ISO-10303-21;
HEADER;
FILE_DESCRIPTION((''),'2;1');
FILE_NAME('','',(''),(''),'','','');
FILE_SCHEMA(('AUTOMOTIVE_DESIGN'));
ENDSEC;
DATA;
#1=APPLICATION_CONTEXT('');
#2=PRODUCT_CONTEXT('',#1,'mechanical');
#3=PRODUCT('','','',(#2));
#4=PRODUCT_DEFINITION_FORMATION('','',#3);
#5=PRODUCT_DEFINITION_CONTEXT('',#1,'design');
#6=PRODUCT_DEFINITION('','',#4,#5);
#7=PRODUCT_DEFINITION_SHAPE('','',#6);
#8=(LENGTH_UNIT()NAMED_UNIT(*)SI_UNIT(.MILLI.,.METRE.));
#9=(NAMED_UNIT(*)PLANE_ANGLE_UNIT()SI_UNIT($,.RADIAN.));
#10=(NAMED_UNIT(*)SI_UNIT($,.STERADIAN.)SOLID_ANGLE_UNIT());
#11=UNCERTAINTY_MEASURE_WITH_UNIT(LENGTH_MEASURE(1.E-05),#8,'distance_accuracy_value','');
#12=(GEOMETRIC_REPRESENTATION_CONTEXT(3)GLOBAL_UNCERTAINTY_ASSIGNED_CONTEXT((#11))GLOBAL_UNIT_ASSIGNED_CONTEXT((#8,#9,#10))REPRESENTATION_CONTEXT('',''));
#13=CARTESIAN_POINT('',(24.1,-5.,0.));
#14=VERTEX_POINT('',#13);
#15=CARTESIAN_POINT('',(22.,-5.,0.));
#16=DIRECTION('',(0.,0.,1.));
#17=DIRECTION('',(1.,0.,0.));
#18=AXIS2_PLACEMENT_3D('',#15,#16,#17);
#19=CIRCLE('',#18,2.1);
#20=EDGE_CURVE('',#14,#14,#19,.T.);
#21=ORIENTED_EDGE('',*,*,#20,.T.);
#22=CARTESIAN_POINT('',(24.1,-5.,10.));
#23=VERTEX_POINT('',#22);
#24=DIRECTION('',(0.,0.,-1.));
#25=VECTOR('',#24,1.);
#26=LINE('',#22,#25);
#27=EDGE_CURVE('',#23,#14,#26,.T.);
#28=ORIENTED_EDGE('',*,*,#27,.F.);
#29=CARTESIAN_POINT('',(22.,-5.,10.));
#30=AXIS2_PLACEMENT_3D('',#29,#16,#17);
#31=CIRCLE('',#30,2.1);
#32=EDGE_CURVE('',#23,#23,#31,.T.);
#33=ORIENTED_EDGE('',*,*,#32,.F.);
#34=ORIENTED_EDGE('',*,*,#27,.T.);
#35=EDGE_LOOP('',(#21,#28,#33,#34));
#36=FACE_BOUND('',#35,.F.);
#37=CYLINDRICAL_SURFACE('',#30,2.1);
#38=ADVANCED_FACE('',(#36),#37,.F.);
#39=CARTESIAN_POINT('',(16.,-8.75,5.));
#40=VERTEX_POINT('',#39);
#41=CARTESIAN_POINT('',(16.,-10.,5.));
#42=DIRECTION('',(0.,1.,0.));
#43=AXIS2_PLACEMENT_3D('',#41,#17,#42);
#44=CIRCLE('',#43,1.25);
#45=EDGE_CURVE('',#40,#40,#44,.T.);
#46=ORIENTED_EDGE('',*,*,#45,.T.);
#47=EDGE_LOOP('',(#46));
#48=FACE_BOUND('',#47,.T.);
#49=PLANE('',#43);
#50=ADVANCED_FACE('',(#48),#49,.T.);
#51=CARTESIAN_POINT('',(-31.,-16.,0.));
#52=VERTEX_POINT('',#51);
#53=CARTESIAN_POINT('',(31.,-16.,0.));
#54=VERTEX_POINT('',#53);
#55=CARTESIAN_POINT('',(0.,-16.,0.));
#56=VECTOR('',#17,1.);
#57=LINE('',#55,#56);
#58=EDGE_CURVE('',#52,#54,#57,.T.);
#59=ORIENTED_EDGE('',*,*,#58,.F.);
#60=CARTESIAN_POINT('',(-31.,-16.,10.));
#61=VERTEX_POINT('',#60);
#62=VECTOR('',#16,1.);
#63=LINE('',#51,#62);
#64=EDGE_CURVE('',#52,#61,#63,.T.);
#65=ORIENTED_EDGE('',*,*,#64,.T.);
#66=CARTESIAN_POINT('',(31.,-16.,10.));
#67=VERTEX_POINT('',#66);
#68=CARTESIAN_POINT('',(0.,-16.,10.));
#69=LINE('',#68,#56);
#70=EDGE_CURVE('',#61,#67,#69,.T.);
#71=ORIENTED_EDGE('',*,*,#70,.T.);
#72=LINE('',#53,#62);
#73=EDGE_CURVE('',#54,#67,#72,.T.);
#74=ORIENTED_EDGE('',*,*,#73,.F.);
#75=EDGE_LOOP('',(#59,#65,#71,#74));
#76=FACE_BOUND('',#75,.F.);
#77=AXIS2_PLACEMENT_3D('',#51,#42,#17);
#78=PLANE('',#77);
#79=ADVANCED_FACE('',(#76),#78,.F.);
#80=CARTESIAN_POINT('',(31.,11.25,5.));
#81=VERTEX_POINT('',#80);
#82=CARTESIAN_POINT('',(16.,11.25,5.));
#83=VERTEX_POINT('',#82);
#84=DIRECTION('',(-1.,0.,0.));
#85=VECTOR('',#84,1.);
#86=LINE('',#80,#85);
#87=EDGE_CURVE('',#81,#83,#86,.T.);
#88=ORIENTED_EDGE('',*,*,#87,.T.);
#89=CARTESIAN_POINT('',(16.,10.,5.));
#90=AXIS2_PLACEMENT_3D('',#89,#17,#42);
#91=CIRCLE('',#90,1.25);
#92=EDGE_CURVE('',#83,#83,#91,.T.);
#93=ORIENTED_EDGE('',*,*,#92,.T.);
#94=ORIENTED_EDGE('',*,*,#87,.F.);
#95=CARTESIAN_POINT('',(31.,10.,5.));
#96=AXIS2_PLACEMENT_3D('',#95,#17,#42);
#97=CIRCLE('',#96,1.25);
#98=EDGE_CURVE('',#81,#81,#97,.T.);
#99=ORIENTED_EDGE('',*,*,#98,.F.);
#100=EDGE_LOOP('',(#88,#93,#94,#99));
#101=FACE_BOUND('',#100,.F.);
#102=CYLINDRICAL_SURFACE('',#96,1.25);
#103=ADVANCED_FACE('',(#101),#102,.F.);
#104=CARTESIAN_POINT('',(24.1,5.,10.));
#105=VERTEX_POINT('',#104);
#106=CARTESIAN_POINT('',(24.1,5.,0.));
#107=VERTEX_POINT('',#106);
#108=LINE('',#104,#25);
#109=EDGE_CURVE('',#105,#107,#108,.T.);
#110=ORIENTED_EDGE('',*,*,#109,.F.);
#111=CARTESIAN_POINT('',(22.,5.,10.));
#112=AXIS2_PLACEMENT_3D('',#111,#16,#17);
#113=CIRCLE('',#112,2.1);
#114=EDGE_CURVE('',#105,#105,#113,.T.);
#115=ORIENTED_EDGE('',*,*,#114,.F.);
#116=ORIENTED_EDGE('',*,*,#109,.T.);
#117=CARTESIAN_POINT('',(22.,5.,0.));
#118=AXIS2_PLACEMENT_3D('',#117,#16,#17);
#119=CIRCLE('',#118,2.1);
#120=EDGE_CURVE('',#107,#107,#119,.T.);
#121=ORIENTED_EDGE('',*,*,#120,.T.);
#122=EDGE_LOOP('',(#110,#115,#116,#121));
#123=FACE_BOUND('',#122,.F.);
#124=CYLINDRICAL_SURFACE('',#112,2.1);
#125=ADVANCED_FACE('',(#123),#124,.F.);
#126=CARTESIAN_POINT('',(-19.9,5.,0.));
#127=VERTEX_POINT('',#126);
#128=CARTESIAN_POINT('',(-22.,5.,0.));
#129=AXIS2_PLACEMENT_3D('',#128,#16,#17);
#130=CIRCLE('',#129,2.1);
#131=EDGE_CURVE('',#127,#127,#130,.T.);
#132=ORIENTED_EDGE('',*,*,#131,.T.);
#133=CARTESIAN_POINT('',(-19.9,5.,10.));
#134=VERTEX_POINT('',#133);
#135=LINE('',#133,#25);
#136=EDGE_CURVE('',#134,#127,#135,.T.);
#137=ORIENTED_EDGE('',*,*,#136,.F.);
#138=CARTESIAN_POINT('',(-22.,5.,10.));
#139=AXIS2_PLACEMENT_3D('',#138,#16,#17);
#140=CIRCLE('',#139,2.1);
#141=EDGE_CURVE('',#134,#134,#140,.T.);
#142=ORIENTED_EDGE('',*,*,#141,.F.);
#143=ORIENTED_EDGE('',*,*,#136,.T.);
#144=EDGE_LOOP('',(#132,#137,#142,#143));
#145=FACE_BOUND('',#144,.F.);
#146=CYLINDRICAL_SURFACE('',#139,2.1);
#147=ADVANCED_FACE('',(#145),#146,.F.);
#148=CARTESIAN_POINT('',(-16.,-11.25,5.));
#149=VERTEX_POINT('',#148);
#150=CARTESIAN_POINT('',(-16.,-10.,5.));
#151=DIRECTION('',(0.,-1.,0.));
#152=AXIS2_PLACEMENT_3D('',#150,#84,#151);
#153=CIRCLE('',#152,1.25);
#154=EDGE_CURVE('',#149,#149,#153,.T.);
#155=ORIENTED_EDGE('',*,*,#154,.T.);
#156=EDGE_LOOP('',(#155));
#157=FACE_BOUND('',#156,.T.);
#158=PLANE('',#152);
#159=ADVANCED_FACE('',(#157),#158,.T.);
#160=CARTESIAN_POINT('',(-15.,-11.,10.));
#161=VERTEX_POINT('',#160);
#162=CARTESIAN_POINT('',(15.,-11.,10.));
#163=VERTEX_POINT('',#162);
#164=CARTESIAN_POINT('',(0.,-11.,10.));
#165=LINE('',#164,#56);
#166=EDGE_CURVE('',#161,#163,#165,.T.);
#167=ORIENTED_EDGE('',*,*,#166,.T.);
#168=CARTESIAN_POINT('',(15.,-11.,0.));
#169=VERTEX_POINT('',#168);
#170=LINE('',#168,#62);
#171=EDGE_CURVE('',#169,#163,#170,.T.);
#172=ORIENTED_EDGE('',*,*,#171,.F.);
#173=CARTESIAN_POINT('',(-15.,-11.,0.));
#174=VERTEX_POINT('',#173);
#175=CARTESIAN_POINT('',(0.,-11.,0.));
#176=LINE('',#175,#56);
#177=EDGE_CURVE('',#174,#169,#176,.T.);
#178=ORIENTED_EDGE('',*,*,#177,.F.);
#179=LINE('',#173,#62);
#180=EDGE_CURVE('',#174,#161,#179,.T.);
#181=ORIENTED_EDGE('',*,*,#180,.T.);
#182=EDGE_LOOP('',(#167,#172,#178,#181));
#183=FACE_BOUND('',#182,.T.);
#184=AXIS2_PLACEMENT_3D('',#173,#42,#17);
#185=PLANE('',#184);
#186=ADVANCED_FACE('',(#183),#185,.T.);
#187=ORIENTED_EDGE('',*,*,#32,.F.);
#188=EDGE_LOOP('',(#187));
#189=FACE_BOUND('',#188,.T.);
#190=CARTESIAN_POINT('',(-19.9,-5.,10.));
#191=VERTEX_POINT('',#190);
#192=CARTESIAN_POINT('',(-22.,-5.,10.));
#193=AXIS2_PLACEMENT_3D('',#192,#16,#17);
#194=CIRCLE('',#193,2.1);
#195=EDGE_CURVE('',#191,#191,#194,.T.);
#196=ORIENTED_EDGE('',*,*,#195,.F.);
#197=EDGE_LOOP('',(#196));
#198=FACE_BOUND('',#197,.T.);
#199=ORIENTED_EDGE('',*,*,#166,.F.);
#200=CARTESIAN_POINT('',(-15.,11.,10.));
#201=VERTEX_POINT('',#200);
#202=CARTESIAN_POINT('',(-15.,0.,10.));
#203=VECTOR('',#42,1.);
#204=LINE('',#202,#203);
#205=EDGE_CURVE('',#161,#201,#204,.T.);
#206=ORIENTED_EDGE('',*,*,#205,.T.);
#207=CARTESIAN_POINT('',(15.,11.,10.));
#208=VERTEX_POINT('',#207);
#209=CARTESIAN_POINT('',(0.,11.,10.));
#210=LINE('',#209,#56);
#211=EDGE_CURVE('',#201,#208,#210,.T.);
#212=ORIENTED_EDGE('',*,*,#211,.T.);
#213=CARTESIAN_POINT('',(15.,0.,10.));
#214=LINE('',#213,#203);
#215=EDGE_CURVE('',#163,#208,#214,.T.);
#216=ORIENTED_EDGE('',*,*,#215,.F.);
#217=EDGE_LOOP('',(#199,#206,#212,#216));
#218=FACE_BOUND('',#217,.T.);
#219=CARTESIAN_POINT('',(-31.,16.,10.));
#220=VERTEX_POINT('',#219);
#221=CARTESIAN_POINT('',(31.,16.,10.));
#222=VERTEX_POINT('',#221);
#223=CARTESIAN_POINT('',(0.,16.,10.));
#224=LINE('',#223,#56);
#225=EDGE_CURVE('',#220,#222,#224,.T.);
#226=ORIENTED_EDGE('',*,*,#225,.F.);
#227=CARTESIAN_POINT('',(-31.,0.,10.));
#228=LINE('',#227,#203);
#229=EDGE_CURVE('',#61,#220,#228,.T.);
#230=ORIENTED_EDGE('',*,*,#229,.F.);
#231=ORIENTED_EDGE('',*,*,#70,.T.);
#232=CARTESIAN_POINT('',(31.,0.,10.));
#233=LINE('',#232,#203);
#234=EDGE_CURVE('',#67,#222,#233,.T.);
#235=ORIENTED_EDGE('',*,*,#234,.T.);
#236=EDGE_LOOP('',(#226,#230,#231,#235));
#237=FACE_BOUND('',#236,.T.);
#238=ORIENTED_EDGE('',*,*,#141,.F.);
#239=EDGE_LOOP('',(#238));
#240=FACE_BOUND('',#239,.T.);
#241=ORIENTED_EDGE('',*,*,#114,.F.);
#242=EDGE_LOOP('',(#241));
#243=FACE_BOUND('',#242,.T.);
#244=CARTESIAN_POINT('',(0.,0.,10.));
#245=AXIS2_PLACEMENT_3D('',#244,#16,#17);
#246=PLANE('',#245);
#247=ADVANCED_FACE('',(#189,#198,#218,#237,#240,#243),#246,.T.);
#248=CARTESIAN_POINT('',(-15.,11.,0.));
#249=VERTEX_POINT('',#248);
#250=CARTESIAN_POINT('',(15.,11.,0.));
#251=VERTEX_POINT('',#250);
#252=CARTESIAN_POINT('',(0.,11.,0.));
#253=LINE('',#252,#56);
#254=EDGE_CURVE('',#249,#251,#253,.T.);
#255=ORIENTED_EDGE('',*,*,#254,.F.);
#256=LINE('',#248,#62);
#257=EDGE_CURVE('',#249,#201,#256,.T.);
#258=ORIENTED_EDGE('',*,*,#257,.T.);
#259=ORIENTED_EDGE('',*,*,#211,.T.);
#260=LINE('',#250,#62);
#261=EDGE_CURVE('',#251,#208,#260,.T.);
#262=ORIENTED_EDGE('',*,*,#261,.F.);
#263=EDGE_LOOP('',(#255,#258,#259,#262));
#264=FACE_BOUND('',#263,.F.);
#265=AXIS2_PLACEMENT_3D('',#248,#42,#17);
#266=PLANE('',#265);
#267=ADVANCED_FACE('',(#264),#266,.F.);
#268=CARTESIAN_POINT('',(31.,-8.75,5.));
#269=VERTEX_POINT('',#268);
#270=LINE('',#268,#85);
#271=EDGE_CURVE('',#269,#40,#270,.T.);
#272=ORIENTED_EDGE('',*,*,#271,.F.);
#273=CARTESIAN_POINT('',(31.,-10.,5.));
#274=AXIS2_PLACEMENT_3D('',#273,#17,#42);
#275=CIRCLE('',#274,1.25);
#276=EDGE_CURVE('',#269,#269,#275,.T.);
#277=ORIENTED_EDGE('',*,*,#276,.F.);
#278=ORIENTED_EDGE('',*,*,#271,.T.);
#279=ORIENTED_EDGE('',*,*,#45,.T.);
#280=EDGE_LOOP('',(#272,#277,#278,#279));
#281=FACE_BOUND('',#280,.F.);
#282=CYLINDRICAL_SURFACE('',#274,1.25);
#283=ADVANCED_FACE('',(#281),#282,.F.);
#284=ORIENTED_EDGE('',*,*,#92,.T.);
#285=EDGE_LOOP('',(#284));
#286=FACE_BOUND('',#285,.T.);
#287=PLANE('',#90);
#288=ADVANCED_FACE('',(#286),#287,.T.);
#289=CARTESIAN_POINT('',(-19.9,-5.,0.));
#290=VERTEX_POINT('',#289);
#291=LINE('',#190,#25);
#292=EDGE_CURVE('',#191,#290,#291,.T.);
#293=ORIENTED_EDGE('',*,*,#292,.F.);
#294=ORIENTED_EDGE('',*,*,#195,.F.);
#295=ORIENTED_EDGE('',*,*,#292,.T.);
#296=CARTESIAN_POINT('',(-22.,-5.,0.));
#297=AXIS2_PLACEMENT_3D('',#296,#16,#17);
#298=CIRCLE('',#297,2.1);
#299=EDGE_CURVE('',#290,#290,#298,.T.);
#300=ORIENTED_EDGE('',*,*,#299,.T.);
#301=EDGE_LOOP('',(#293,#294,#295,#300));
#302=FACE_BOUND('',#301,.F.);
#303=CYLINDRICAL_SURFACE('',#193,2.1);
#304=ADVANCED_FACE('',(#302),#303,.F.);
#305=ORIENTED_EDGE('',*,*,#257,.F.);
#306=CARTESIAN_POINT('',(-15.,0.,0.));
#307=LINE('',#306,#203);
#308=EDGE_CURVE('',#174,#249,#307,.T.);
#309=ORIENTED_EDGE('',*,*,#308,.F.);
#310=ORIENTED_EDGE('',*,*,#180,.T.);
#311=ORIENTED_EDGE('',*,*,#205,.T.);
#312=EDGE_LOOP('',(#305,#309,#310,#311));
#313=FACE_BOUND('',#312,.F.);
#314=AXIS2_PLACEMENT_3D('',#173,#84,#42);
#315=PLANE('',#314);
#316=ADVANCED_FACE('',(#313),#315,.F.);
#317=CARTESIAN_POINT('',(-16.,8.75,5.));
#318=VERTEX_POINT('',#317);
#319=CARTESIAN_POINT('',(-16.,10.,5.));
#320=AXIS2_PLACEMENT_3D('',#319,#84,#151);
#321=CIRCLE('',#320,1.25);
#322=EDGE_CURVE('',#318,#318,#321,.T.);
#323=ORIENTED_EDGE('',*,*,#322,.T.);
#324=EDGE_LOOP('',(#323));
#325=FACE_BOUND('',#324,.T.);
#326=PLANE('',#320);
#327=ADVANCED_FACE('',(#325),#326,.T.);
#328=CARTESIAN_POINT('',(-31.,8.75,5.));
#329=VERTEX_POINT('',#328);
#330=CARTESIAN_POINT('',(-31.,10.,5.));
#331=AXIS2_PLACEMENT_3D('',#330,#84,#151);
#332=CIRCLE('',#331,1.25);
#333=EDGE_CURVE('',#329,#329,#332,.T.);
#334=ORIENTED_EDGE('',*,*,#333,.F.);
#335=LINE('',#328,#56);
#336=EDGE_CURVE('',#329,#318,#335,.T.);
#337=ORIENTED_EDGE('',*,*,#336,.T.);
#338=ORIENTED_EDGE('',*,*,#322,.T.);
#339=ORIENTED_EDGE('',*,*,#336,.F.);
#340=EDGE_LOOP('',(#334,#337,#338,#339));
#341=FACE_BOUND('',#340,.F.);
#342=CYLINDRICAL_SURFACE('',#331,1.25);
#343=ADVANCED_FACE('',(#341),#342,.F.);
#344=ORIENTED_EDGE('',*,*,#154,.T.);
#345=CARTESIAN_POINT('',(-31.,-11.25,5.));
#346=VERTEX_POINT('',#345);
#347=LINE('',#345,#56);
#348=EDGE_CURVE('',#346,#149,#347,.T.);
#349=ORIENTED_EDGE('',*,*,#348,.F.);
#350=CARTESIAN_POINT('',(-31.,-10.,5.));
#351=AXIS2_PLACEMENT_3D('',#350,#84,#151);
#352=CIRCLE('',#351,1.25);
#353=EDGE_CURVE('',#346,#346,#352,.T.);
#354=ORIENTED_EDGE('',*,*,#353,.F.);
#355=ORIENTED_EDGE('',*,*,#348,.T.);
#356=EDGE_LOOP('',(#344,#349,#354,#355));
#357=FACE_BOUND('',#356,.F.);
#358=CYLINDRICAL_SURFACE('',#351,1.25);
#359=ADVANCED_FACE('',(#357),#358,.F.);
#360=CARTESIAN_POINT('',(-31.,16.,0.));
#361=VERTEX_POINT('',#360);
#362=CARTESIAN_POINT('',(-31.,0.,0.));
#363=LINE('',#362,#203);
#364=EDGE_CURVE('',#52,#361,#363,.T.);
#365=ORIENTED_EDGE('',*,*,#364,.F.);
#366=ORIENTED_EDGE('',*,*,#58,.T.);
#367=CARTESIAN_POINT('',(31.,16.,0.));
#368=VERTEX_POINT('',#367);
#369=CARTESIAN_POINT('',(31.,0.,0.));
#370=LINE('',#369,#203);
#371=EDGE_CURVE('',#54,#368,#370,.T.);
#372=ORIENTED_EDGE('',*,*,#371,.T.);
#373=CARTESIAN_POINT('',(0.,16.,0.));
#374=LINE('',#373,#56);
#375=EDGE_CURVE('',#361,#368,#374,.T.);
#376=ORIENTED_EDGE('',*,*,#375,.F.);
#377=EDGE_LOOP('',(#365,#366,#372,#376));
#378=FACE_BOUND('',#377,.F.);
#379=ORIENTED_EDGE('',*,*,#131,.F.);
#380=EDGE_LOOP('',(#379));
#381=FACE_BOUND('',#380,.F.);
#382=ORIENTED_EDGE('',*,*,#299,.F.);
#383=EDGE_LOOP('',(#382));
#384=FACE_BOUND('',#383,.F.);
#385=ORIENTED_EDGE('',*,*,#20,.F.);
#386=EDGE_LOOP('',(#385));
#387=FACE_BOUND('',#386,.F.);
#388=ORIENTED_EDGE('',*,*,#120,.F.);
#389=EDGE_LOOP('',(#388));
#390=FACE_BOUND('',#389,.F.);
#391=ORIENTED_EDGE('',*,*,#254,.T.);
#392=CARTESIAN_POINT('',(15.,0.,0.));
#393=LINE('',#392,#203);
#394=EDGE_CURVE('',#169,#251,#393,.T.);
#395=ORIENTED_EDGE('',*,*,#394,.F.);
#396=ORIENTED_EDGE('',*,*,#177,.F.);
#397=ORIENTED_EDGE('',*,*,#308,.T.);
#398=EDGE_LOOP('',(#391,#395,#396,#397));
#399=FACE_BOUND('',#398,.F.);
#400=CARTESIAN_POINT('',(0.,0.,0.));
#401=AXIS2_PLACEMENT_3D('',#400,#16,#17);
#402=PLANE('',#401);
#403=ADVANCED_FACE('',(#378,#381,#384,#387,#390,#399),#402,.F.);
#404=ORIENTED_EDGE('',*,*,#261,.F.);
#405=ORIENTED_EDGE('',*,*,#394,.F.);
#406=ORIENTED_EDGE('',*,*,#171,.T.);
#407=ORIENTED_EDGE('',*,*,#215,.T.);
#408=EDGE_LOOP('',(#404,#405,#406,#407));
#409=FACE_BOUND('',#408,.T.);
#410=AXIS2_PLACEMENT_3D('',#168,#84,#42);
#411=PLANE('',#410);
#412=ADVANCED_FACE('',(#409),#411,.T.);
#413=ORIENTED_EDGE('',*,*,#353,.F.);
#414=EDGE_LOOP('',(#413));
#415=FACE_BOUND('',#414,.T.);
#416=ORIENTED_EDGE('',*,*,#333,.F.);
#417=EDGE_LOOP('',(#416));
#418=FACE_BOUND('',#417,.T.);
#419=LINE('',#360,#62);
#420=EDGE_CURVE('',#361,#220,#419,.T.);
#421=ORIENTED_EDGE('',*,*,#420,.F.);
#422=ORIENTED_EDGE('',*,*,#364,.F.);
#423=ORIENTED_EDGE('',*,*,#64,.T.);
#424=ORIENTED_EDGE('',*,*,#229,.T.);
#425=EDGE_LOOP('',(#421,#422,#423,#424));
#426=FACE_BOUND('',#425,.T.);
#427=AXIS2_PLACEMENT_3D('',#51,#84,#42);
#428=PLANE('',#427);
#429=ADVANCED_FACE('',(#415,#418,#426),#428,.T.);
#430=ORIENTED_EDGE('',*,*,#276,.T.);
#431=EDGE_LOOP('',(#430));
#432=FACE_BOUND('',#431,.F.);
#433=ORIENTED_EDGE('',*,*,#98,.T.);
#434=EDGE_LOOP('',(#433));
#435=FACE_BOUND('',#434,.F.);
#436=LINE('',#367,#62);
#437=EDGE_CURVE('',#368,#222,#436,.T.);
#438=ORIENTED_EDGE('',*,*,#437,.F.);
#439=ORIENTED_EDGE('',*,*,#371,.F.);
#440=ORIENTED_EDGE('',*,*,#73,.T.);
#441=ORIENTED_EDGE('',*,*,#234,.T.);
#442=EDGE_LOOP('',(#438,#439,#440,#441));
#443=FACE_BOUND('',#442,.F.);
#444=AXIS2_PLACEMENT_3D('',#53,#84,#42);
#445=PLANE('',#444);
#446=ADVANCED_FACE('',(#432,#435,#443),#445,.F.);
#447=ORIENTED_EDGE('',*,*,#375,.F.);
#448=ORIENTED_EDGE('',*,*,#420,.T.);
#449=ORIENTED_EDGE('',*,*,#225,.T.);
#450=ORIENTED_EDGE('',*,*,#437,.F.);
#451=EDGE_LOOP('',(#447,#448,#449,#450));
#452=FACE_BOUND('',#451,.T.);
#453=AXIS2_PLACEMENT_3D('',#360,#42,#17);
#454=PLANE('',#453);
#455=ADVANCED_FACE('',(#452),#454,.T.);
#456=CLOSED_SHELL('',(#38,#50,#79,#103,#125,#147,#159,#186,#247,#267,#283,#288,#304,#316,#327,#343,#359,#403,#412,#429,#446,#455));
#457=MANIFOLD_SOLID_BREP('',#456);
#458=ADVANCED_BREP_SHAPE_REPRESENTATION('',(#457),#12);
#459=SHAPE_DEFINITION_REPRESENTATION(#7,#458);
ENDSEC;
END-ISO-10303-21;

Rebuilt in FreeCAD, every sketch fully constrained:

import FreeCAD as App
import Part
import Sketcher

doc = App.newDocument("Part")
body = doc.addObject("PartDesign::Body", "Body")

sketch1 = doc.addObject("Sketcher::SketchObject", "Sketch")
body.addObject(sketch1)
sketch1.AttachmentSupport = (doc.XY_Plane, [""])
sketch1.MapMode = "FlatFace"
sketch1.addGeometry(Part.LineSegment(App.Vector(-31, 16, 0), App.Vector(-31, -16, 0)), False)
sketch1.addGeometry(Part.LineSegment(App.Vector(-31, -16, 0), App.Vector(31, -16, 0)), False)
sketch1.addGeometry(Part.LineSegment(App.Vector(31, -16, 0), App.Vector(31, 16, 0)), False)
sketch1.addGeometry(Part.LineSegment(App.Vector(31, 16, 0), App.Vector(-31, 16, 0)), False)
sketch1.addGeometry(Part.LineSegment(App.Vector(15, -11, 0), App.Vector(-15, -11, 0)), False)
sketch1.addGeometry(Part.LineSegment(App.Vector(-15, -11, 0), App.Vector(-15, 11, 0)), False)
sketch1.addGeometry(Part.LineSegment(App.Vector(-15, 11, 0), App.Vector(15, 11, 0)), False)
sketch1.addGeometry(Part.LineSegment(App.Vector(15, 11, 0), App.Vector(15, -11, 0)), False)
sketch1.addConstraint(Sketcher.Constraint("Coincident", 0, 2, 1, 1))
sketch1.addConstraint(Sketcher.Constraint("Coincident", 1, 2, 2, 1))
sketch1.addConstraint(Sketcher.Constraint("Coincident", 2, 2, 3, 1))
sketch1.addConstraint(Sketcher.Constraint("Coincident", 3, 2, 0, 1))
sketch1.addConstraint(Sketcher.Constraint("Coincident", 4, 2, 5, 1))
sketch1.addConstraint(Sketcher.Constraint("Coincident", 5, 2, 6, 1))
sketch1.addConstraint(Sketcher.Constraint("Coincident", 6, 2, 7, 1))
sketch1.addConstraint(Sketcher.Constraint("Coincident", 7, 2, 4, 1))
sketch1.addConstraint(Sketcher.Constraint("Vertical", 0))
sketch1.addConstraint(Sketcher.Constraint("Horizontal", 1))
sketch1.addConstraint(Sketcher.Constraint("Vertical", 2))
sketch1.addConstraint(Sketcher.Constraint("Horizontal", 3))
sketch1.addConstraint(Sketcher.Constraint("Horizontal", 4))
sketch1.addConstraint(Sketcher.Constraint("Vertical", 5))
sketch1.addConstraint(Sketcher.Constraint("Horizontal", 6))
sketch1.addConstraint(Sketcher.Constraint("Vertical", 7))
sketch1.addConstraint(Sketcher.Constraint("Symmetric", 0, 2, 2, 2, -1, 1))
sketch1.addConstraint(Sketcher.Constraint("Symmetric", 4, 2, 6, 2, -1, 1))
sketch1.addConstraint(Sketcher.Constraint("DistanceX", 1, 1, 1, 2, 62.0))
sketch1.addConstraint(Sketcher.Constraint("DistanceX", 4, 2, 4, 1, 30.0))
sketch1.addConstraint(Sketcher.Constraint("DistanceY", 0, 2, 0, 1, 32.0))
sketch1.addConstraint(Sketcher.Constraint("DistanceY", 5, 1, 5, 2, 22.0))
pad1 = doc.addObject("PartDesign::Pad", "Pad")
body.addObject(pad1)
pad1.Profile = sketch1
pad1.Length = 10

sketch2 = doc.addObject("Sketcher::SketchObject", "Sketch001")
body.addObject(sketch2)
sketch2.AttachmentSupport = (doc.XY_Plane, [""])
sketch2.MapMode = "FlatFace"
sketch2.AttachmentOffset = App.Placement(App.Vector(0, 0, 10), App.Rotation())
sketch2.addGeometry(Part.Circle(App.Vector(-22, 5, 0), App.Vector(0, 0, 1), 2.1), False)
sketch2.addGeometry(Part.Circle(App.Vector(-22, -5, 0), App.Vector(0, 0, 1), 2.1), False)
sketch2.addGeometry(Part.Circle(App.Vector(22, 5, 0), App.Vector(0, 0, 1), 2.1), False)
sketch2.addGeometry(Part.Circle(App.Vector(22, -5, 0), App.Vector(0, 0, 1), 2.1), False)
sketch2.addConstraint(Sketcher.Constraint("Equal", 0, 1))
sketch2.addConstraint(Sketcher.Constraint("Equal", 1, 2))
sketch2.addConstraint(Sketcher.Constraint("Equal", 2, 3))
sketch2.addConstraint(Sketcher.Constraint("Symmetric", 1, 3, 2, 3, -1, 1))
sketch2.addConstraint(Sketcher.Constraint("Symmetric", 0, 3, 3, 3, -1, 1))
sketch2.addConstraint(Sketcher.Constraint("Symmetric", 0, 3, 2, 3, -2))
sketch2.addConstraint(Sketcher.Constraint("Diameter", 0, 4.2))
sketch2.addConstraint(Sketcher.Constraint("DistanceX", 0, 3, -1, 1, 22.0))
sketch2.addConstraint(Sketcher.Constraint("DistanceY", -1, 1, 0, 3, 5.0))
pocket1 = doc.addObject("PartDesign::Pocket", "Pocket")
body.addObject(pocket1)
pocket1.Profile = sketch2
pocket1.Type = "ThroughAll"

sketch3 = doc.addObject("Sketcher::SketchObject", "Sketch002")
body.addObject(sketch3)
sketch3.AttachmentSupport = (doc.YZ_Plane, [""])
sketch3.MapMode = "FlatFace"
sketch3.AttachmentOffset = App.Placement(App.Vector(0, 0, -31), App.Rotation())
sketch3.addGeometry(Part.Circle(App.Vector(-10, 5, 0), App.Vector(0, 0, 1), 1.2), False)
sketch3.addGeometry(Part.Circle(App.Vector(10, 5, 0), App.Vector(0, 0, 1), 1.2), False)
sketch3.addConstraint(Sketcher.Constraint("Equal", 0, 1))
sketch3.addConstraint(Sketcher.Constraint("Symmetric", 0, 3, 1, 3, -2))
sketch3.addConstraint(Sketcher.Constraint("Diameter", 0, 2.5))
sketch3.addConstraint(Sketcher.Constraint("DistanceX", 0, 3, -1, 1, 10.0))
sketch3.addConstraint(Sketcher.Constraint("DistanceY", -1, 1, 0, 3, 5.0))
pocket2 = doc.addObject("PartDesign::Pocket", "Pocket001")
body.addObject(pocket2)
pocket2.Profile = sketch3
pocket2.Length = 15
pocket2.Reversed = True

sketch4 = doc.addObject("Sketcher::SketchObject", "Sketch003")
body.addObject(sketch4)
sketch4.AttachmentSupport = (doc.YZ_Plane, [""])
sketch4.MapMode = "FlatFace"
sketch4.AttachmentOffset = App.Placement(App.Vector(0, 0, 31), App.Rotation())
sketch4.addGeometry(Part.Circle(App.Vector(-10, 5, 0), App.Vector(0, 0, 1), 1.2), False)
sketch4.addGeometry(Part.Circle(App.Vector(10, 5, 0), App.Vector(0, 0, 1), 1.2), False)
sketch4.addConstraint(Sketcher.Constraint("Equal", 0, 1))
sketch4.addConstraint(Sketcher.Constraint("Symmetric", 0, 3, 1, 3, -2))
sketch4.addConstraint(Sketcher.Constraint("Diameter", 0, 2.5))
sketch4.addConstraint(Sketcher.Constraint("DistanceX", 0, 3, -1, 1, 10.0))
sketch4.addConstraint(Sketcher.Constraint("DistanceY", -1, 1, 0, 3, 5.0))
pocket3 = doc.addObject("PartDesign::Pocket", "Pocket002")
body.addObject(pocket3)
pocket3.Profile = sketch4
pocket3.Length = 15

doc.recompute()
